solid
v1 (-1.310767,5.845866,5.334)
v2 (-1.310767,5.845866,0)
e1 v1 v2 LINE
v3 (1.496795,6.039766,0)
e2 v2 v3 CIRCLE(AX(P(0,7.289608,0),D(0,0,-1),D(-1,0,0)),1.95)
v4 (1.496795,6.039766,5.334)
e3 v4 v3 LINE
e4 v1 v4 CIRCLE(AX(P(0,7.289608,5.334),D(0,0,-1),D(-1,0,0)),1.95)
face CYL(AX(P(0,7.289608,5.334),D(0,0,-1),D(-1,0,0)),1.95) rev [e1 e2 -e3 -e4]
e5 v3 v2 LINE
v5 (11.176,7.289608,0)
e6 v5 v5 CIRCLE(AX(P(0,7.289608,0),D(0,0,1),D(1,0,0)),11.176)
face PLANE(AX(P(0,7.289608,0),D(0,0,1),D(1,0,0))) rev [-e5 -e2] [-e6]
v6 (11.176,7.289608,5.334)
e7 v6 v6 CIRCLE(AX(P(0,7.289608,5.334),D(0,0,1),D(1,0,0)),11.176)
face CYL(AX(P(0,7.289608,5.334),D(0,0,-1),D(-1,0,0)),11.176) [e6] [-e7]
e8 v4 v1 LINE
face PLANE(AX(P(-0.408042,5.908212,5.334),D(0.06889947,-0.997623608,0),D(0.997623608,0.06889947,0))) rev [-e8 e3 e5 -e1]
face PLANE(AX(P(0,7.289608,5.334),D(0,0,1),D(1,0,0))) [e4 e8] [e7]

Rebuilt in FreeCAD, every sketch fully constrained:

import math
import FreeCAD as App
import Part
import Sketcher
from FreeCAD import Vector
Q = App.Units.Quantity

doc = App.newDocument("Part")
body = doc.addObject("PartDesign::Body", "Body")

# Sketch on XY plane
sketch1 = doc.addObject("Sketcher::SketchObject", "Sketch")
body.addObject(sketch1)
sketch1.AttachmentSupport = (doc.XY_Plane, [""])
sketch1.MapMode = "FlatFace"
sketch1.addGeometry(Part.Circle(Vector(0, 7, 0), Vector(0, 0, 1), 11), False)
sketch1.addConstraint(Sketcher.Constraint("PointOnObject", 0, 3, -2))
sketch1.addConstraint(Sketcher.Constraint("Diameter", 0, Q("0.88 in")))
sketch1.addConstraint(Sketcher.Constraint("DistanceY", -1, 1, 0, 3, 7.289608))
pad1 = doc.addObject("PartDesign::Pad", "Pad")
body.addObject(pad1)
pad1.Profile = sketch1
pad1.Length = Q("0.21 in")

# Sketch on XY plane
sketch2 = doc.addObject("Sketcher::SketchObject", "Sketch001")
body.addObject(sketch2)
sketch2.AttachmentSupport = (doc.XY_Plane, [""])
sketch2.MapMode = "FlatFace"
sketch2.addGeometry(Part.ArcOfCircle(Part.Circle(Vector(0, 7.3, 0), Vector(0, 0, 1), 1.9), math.radians(-40), math.radians(180)), False)
sketch2.addGeometry(Part.LineSegment(Vector(1.5, 6, 0), Vector(-1.3, 5.8, 0)), False)
sketch2.addGeometry(Part.ArcOfCircle(Part.Circle(Vector(0, 7.3, 0), Vector(0, 0, 1), 1.9), math.radians(180), math.radians(228)), False)
sketch2.addConstraint(Sketcher.Constraint("Coincident", 0, 1, 1, 1))
sketch2.addConstraint(Sketcher.Constraint("Coincident", 1, 2, 2, 2))
sketch2.addConstraint(Sketcher.Constraint("Tangent", 2, 1, 0, 2))
sketch2.addConstraint(Sketcher.Constraint("Equal", 0, 2))
sketch2.addConstraint(Sketcher.Constraint("PointOnObject", 0, 3, -2))
sketch2.addConstraint(Sketcher.Constraint("Horizontal", 0, 3, 2, 1))
sketch2.addConstraint(Sketcher.Constraint("Radius", 0, 1.95))
sketch2.addConstraint(Sketcher.Constraint("DistanceY", 1, 2, 0, 1, 0.1939))
sketch2.addConstraint(Sketcher.Constraint("Distance", 1, 2.814249))
sketch2.addConstraint(Sketcher.Constraint("DistanceY", -1, 1, 0, 3, 7.289608))
pocket1 = doc.addObject("PartDesign::Pocket", "Pocket")
body.addObject(pocket1)
pocket1.Profile = sketch2
pocket1.Type = "ThroughAll"
pocket1.Reversed = True

doc.recompute()
